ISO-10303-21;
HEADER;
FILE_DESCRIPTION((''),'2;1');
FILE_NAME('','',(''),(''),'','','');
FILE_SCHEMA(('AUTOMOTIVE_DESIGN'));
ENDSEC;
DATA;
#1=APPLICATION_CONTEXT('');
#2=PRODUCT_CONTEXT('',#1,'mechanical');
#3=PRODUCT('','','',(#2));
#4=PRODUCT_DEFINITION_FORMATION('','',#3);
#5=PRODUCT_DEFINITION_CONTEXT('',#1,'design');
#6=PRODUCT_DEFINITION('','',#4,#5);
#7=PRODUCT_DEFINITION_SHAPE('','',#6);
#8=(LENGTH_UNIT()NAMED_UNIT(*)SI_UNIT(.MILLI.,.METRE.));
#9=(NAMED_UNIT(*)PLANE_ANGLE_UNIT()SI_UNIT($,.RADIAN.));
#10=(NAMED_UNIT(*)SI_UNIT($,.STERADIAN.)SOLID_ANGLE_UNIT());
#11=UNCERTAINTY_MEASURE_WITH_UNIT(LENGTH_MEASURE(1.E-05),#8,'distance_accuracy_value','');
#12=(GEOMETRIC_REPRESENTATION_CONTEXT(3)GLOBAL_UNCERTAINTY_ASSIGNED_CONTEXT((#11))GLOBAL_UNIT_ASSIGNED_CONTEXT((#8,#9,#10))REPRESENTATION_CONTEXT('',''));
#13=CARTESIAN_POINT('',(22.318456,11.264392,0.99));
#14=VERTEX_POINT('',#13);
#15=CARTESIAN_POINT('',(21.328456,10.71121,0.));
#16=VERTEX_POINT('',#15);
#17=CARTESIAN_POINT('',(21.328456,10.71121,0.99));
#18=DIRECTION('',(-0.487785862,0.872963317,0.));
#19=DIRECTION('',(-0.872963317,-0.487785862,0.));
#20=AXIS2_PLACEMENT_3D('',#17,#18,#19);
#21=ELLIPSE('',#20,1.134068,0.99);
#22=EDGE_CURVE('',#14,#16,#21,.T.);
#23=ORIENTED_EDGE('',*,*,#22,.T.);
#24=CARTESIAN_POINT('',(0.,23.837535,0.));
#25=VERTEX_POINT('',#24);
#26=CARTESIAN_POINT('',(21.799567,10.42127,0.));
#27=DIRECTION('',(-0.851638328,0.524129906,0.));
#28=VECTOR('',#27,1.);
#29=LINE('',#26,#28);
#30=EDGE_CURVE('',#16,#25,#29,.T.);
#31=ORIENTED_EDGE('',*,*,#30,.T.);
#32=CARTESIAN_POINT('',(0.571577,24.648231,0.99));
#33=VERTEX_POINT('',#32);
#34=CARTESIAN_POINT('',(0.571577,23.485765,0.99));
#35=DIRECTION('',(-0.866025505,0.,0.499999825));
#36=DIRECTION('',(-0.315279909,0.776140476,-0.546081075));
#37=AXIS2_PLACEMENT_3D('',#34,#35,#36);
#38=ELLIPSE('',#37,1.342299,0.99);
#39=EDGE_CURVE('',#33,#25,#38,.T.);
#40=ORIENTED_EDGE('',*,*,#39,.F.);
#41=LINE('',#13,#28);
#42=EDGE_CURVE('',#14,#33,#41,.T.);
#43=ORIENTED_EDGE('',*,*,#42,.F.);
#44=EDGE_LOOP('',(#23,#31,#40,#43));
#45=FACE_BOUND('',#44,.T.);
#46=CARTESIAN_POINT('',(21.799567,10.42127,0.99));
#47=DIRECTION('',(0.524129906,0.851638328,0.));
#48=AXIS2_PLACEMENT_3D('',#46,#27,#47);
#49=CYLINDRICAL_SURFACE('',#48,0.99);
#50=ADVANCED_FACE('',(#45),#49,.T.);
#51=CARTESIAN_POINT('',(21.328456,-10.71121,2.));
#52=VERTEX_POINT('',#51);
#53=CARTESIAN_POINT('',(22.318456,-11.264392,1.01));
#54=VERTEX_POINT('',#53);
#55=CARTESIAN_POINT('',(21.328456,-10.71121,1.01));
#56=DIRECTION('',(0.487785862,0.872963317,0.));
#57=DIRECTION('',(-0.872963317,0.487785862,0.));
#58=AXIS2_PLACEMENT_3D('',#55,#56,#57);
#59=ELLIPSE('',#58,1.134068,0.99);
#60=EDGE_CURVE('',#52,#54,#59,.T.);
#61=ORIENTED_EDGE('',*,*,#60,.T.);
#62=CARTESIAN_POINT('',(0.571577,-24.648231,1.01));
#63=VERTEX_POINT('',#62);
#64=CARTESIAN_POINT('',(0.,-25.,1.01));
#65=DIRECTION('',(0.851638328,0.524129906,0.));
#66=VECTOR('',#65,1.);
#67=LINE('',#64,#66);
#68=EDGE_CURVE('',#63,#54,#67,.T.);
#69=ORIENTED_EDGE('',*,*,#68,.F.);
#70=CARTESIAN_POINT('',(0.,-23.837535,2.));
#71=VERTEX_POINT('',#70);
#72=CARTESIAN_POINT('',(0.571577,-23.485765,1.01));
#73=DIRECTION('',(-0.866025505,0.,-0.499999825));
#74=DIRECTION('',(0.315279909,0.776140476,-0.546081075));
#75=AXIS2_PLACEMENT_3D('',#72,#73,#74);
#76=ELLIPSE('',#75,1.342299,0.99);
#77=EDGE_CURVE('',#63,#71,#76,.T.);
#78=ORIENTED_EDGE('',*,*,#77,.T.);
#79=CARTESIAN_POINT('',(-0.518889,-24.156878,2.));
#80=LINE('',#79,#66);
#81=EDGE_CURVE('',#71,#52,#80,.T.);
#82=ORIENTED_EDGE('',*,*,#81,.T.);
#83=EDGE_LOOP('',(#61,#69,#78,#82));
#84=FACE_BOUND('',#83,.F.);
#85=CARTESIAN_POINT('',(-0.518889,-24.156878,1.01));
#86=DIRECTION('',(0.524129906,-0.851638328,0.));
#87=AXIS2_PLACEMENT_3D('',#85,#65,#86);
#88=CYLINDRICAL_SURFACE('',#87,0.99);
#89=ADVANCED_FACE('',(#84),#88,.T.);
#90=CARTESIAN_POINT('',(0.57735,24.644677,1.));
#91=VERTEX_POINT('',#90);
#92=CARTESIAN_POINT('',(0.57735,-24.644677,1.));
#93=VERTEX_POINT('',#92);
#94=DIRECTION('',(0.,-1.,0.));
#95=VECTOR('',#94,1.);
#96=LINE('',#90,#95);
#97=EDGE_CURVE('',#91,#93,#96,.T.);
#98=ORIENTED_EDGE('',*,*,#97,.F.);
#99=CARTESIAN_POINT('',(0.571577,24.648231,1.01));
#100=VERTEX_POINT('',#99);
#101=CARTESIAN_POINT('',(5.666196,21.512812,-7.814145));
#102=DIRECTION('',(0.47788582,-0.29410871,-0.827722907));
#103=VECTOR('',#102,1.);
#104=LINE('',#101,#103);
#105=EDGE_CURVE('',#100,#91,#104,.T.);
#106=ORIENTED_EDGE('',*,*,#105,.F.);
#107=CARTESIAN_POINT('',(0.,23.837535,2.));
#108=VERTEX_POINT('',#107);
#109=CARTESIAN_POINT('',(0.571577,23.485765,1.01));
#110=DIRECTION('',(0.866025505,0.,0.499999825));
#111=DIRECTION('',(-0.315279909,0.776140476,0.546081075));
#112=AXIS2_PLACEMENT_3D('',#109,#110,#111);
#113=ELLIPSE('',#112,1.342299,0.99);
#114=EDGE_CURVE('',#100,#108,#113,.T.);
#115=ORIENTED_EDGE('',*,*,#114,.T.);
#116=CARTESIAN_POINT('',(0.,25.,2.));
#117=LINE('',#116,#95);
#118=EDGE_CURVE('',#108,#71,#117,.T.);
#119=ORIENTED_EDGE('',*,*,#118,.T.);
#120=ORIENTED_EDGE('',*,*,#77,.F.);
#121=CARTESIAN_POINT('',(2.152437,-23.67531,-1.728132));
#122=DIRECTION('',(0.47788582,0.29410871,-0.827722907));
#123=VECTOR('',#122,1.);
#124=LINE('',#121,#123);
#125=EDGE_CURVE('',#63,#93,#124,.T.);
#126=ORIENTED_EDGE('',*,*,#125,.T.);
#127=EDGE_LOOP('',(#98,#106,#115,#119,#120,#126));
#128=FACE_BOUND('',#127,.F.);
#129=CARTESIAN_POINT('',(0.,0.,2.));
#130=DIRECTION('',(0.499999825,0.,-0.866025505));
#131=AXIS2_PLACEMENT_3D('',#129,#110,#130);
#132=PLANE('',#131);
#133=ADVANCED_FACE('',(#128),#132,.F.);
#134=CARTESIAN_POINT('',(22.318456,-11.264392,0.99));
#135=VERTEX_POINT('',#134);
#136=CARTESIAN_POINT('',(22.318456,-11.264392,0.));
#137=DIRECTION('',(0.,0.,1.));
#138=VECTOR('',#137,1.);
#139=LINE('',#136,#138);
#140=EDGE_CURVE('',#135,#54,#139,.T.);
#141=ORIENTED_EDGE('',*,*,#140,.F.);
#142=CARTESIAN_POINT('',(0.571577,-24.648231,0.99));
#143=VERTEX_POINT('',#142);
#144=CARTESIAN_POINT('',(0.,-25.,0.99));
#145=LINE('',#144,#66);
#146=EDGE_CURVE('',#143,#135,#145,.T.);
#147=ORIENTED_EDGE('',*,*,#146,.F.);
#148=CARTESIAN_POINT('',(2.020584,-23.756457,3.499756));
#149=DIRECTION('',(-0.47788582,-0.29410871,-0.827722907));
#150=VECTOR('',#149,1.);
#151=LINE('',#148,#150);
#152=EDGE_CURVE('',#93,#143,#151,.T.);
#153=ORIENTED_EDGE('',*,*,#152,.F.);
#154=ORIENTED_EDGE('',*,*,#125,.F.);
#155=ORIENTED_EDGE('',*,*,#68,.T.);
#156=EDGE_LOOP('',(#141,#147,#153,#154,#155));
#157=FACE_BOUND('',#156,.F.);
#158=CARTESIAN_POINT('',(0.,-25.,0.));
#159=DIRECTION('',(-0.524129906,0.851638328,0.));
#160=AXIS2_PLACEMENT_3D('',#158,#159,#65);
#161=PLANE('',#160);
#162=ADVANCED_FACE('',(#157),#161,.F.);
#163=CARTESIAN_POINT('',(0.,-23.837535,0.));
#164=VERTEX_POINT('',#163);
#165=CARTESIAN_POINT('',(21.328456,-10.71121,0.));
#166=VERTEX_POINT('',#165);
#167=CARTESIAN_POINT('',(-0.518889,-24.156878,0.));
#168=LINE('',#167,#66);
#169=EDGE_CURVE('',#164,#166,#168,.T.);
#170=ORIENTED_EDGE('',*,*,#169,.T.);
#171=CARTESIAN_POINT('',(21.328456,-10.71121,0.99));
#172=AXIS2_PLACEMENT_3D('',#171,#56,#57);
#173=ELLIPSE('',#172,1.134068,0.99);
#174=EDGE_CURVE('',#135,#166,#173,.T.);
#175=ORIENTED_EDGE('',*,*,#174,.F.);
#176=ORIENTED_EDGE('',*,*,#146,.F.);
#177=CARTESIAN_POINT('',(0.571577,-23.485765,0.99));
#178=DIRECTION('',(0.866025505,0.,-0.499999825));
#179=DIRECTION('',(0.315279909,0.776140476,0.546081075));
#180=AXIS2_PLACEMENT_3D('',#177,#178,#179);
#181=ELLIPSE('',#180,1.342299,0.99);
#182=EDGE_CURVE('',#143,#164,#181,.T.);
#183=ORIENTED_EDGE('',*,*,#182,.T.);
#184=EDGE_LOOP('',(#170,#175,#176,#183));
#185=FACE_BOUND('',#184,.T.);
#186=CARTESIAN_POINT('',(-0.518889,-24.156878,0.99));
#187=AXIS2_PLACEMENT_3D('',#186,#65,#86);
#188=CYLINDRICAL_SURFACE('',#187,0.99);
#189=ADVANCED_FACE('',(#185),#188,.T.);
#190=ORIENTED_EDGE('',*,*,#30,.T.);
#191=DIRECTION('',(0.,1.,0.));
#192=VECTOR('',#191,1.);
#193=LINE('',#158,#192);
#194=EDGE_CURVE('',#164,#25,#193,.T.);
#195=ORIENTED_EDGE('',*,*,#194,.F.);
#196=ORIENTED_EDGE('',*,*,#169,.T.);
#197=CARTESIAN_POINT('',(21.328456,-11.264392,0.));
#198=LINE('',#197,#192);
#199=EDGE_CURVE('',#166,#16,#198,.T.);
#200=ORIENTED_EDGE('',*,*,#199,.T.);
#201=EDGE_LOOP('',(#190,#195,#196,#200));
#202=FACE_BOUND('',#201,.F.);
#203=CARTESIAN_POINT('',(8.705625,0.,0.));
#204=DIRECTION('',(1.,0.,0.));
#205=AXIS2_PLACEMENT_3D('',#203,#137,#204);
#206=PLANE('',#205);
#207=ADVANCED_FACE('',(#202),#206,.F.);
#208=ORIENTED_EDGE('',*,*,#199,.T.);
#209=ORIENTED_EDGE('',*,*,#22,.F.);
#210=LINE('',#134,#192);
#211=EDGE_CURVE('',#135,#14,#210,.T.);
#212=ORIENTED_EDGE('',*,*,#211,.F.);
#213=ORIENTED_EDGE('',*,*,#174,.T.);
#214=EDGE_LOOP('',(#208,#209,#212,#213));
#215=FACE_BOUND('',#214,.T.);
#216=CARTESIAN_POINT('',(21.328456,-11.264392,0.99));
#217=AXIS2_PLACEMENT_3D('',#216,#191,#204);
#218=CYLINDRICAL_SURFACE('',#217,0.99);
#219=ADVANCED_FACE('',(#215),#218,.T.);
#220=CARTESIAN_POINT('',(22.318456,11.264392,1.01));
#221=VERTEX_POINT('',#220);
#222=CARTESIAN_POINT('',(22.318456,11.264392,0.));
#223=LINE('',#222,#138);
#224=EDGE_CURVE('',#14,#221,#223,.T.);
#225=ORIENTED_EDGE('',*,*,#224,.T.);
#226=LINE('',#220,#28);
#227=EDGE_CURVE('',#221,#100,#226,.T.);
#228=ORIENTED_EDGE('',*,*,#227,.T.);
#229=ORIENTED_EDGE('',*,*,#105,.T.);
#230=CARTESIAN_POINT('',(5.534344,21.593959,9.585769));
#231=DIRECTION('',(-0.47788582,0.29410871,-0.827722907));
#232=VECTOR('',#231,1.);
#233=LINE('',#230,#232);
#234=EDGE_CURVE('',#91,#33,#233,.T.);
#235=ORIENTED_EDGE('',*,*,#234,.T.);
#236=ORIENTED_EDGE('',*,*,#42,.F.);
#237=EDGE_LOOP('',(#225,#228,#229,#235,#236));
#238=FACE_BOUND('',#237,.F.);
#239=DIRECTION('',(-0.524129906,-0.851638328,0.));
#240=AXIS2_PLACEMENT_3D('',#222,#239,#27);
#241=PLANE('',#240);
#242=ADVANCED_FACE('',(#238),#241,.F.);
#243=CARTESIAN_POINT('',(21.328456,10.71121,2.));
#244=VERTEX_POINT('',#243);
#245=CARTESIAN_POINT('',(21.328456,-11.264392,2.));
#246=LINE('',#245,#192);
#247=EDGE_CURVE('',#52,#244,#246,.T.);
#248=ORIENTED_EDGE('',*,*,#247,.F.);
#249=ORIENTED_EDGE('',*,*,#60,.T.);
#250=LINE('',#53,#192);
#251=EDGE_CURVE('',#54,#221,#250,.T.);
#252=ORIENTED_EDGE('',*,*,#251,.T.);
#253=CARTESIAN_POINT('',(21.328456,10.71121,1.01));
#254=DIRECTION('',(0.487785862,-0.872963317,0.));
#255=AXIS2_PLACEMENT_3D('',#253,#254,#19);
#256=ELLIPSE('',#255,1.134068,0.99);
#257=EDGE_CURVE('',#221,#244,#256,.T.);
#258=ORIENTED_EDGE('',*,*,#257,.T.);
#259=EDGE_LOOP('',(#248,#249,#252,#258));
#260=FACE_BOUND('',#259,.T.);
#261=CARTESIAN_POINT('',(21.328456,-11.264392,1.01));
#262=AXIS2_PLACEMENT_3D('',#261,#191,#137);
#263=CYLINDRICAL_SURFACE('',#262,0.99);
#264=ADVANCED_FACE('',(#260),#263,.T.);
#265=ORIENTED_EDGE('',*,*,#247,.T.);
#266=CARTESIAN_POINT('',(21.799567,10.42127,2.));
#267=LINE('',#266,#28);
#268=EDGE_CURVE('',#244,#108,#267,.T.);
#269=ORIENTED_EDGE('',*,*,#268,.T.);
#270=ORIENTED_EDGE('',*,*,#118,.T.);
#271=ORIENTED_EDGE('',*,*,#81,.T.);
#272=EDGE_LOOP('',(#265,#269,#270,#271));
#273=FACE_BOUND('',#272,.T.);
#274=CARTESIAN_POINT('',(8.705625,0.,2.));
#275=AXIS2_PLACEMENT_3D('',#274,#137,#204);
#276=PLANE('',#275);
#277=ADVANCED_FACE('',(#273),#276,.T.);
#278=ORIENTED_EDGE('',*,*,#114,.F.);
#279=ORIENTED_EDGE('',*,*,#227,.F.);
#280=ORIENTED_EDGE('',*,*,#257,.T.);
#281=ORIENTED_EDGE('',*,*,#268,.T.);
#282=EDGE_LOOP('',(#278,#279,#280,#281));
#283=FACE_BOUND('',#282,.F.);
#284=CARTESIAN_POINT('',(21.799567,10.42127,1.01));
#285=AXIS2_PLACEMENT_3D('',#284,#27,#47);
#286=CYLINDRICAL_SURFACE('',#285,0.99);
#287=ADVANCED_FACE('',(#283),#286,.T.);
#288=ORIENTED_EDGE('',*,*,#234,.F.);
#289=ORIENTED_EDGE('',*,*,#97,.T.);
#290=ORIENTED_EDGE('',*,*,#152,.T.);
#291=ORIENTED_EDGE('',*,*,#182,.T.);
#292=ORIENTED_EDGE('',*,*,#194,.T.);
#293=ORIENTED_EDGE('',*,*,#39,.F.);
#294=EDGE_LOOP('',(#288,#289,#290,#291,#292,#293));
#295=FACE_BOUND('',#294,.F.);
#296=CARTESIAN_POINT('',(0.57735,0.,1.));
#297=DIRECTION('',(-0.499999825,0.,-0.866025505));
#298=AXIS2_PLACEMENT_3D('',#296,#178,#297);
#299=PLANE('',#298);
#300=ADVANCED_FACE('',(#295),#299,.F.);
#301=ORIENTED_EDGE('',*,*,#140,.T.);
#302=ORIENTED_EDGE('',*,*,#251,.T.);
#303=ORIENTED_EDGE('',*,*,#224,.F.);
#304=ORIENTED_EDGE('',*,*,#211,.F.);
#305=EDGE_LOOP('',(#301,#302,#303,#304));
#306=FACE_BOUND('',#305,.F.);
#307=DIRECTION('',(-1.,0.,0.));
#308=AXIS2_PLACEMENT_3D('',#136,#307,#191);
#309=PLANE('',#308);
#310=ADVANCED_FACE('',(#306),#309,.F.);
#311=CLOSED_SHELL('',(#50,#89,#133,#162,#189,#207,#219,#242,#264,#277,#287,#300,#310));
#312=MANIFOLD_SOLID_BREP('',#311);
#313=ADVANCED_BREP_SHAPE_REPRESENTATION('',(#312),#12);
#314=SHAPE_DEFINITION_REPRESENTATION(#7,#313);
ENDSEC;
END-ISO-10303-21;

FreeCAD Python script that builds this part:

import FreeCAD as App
import Part
import Sketcher
Q = App.Units.Quantity


def edges_at(feature, points):
    """Names of the edges that pass closest to the given points."""
    edges = feature.Shape.Edges
    near = lambda p: min(range(len(edges)), key=lambda i: edges[i].distToShape(Part.Vertex(*p))[0])
    return sorted({f"Edge{near(p) + 1}" for p in points})

doc = App.newDocument("Part")
body = doc.addObject("PartDesign::Body", "Body")

# Sketch on XY plane
sketch1 = body.newObject("Sketcher::SketchObject", "Sketch")
sketch1.AttachmentSupport = (doc.getObject("XY_Plane"), [""])
sketch1.MapMode = "FlatFace"
sketch1.addGeometry([
    Part.LineSegment(App.Vector(0, -25, 0), App.Vector(22, -11, 0)),
    Part.LineSegment(App.Vector(22, -11, 0), App.Vector(22, 11, 0)),
    Part.LineSegment(App.Vector(22, 11, 0), App.Vector(0, 25, 0)),
    Part.LineSegment(App.Vector(0, 25, 0), App.Vector(0, -25, 0)),
], False)
sketch1.addConstraint([
    Sketcher.Constraint("Coincident", 0, 2, 1, 1),
    Sketcher.Constraint("Coincident", 1, 2, 2, 1),
    Sketcher.Constraint("Coincident", 2, 2, 3, 1),
    Sketcher.Constraint("Coincident", 3, 2, 0, 1),
    Sketcher.Constraint("Vertical", 1),
    Sketcher.Constraint("Vertical", 3),
    Sketcher.Constraint("Symmetric", 2, 2, 3, 2, -1, 1),
    Sketcher.Constraint("Equal", 0, 2),
    Sketcher.Constraint("DistanceY", 3, 2, 3, 1, 50.0),
    Sketcher.Constraint("DistanceY", 1, 1, 1, 2, 22.528784),
    Sketcher.Constraint("Distance", 0, 26.206495),
])
pad1 = body.newObject("PartDesign::Pad", "Pad")
pad1.Profile = sketch1
pad1.Length = 2

# Sketch on XZ plane
sketch2 = body.newObject("Sketcher::SketchObject", "Sketch001")
sketch2.AttachmentSupport = (doc.getObject("XZ_Plane"), [""])
sketch2.MapMode = "FlatFace"
sketch2.addGeometry([
    Part.LineSegment(App.Vector(0.6, 1, 0), App.Vector(0, 2, 0)),  # 0
    Part.LineSegment(App.Vector(0, 2, 0), App.Vector(-0.9, 1.8, 0)),  # 1
    Part.LineSegment(App.Vector(-0.9, 1.8, 0), App.Vector(-0.8, 0.2, 0)),  # 2
    Part.LineSegment(App.Vector(-0.8, 0.2, 0), App.Vector(0, 0, 0)),  # 3
    Part.LineSegment(App.Vector(0, 0, 0), App.Vector(0.6, 1, 0)),  # 4
], False)
sketch2.addConstraint([
    Sketcher.Constraint("Coincident", 0, 2, 1, 1),
    Sketcher.Constraint("Coincident", 1, 2, 2, 1),
    Sketcher.Constraint("Coincident", 2, 2, 3, 1),
    Sketcher.Constraint("Coincident", 3, 2, 4, 1),
    Sketcher.Constraint("Coincident", 4, 2, 0, 1),
    Sketcher.Constraint("Coincident", 3, 2, -1, 1),
    Sketcher.Constraint("PointOnObject", 0, 2, -2),
    Sketcher.Constraint("Equal", 0, 4),
    Sketcher.Constraint("Angle", 0, Q("119.999988 deg")),
    Sketcher.Constraint("DistanceY", -1, 1, 0, 2, 2.0),
    Sketcher.Constraint("DistanceX", 1, 2, 2, 2, 0.12802),
    Sketcher.Constraint("DistanceY", 2, 2, 1, 2, 1.60026),
    Sketcher.Constraint("Distance", 1, 0.931915),
    Sketcher.Constraint("Distance", 3, 0.817168),
])
pocket1 = body.newObject("PartDesign::Pocket", "Pocket")
pocket1.Profile = sketch2
pocket1.Type = "ThroughAll"
pocket1.Midplane = True
doc.recompute()

fillet = body.newObject("PartDesign::Fillet", "Fillet")
fillet.Base = (pocket1, edges_at(pocket1, [
    (11.159, 18.132, 0),
    (11.159, 18.132, 2),
    (22.318, 0, 0),
    (11.159, -18.132, 0),
    (22.318, 0, 2),
    (11.159, -18.132, 2),
]))
fillet.Radius = 0.99

doc.recompute()
